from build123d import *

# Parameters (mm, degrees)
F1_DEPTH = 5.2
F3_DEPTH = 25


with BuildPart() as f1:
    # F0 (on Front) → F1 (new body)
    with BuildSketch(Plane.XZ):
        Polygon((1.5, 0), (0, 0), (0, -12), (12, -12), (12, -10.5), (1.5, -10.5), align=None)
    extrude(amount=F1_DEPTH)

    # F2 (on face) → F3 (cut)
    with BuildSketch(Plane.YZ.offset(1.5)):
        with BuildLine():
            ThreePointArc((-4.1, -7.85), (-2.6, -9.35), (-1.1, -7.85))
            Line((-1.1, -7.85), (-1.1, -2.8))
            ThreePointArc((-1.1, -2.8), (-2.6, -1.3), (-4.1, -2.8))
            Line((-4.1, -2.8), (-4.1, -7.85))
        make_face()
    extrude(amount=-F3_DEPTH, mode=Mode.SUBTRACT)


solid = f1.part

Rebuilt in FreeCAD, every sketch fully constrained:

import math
import FreeCAD as App
import Part
import Sketcher
from FreeCAD import Vector
Q = App.Units.Quantity

doc = App.newDocument("Part")
body = doc.addObject("PartDesign::Body", "Body")

sketch1 = body.newObject("Sketcher::SketchObject", "Sketch")
sketch1.AttachmentSupport = (doc.getObject("XZ_Plane"), [""])
sketch1.MapMode = "FlatFace"
sketch1.addGeometry(Part.LineSegment(Vector(1.5, 0, 0), Vector(0, 0, 0)), False)
sketch1.addGeometry(Part.LineSegment(Vector(0, 0, 0), Vector(0, -12, 0)), False)
sketch1.addGeometry(Part.LineSegment(Vector(0, -12, 0), Vector(12, -12, 0)), False)
sketch1.addGeometry(Part.LineSegment(Vector(12, -12, 0), Vector(12, -10.5, 0)), False)
sketch1.addGeometry(Part.LineSegment(Vector(12, -10.5, 0), Vector(1.5, -10.5, 0)), False)
sketch1.addGeometry(Part.LineSegment(Vector(1.5, -10.5, 0), Vector(1.5, 0, 0)), False)
sketch1.addConstraint(Sketcher.Constraint("Coincident", 0, 2, 1, 1))
sketch1.addConstraint(Sketcher.Constraint("Coincident", 1, 2, 2, 1))
sketch1.addConstraint(Sketcher.Constraint("Coincident", 2, 2, 3, 1))
sketch1.addConstraint(Sketcher.Constraint("Coincident", 3, 2, 4, 1))
sketch1.addConstraint(Sketcher.Constraint("Coincident", 4, 2, 5, 1))
sketch1.addConstraint(Sketcher.Constraint("Coincident", 5, 2, 0, 1))
sketch1.addConstraint(Sketcher.Constraint("Horizontal", 0))
sketch1.addConstraint(Sketcher.Constraint("Vertical", 1))
sketch1.addConstraint(Sketcher.Constraint("Horizontal", 2))
sketch1.addConstraint(Sketcher.Constraint("Vertical", 3))
sketch1.addConstraint(Sketcher.Constraint("Horizontal", 4))
sketch1.addConstraint(Sketcher.Constraint("Vertical", 5))
sketch1.addConstraint(Sketcher.Constraint("Coincident", 0, 2, -1, 1))
sketch1.addConstraint(Sketcher.Constraint("Equal", 2, 1))
sketch1.addConstraint(Sketcher.Constraint("Equal", 0, 3))
sketch1.addConstraint(Sketcher.Constraint("DistanceX", 2, 1, 2, 2, Q("12 mm")))
sketch1.addConstraint(Sketcher.Constraint("DistanceX", 0, 2, 0, 1, Q("1.5 mm")))
pad1 = body.newObject("PartDesign::Pad", "Pad")
pad1.Profile = sketch1
pad1.Length = 5.2

sketch2 = body.newObject("Sketcher::SketchObject", "Sketch001")
sketch2.AttachmentSupport = (doc.getObject("YZ_Plane"), [""])
sketch2.MapMode = "FlatFace"
sketch2.AttachmentOffset = App.Placement(Vector(0, 0, 1.5), App.Rotation())
sketch2.addGeometry(Part.ArcOfCircle(Part.Circle(Vector(-2.6, -7.8, 0), Vector(0, 0, 1), 1.5), math.radians(180), math.radians(360)), False)
sketch2.addGeometry(Part.LineSegment(Vector(-1.1, -7.8, 0), Vector(-1.1, -2.8, 0)), False)
sketch2.addGeometry(Part.ArcOfCircle(Part.Circle(Vector(-2.6, -2.8, 0), Vector(0, 0, 1), 1.5), math.radians(0), math.radians(180)), False)
sketch2.addGeometry(Part.LineSegment(Vector(-4.1, -2.8, 0), Vector(-4.1, -7.8, 0)), False)
sketch2.addConstraint(Sketcher.Constraint("Tangent", 0, 2, 1, 1))
sketch2.addConstraint(Sketcher.Constraint("Tangent", 1, 2, 2, 1))
sketch2.addConstraint(Sketcher.Constraint("Tangent", 2, 2, 3, 1))
sketch2.addConstraint(Sketcher.Constraint("Tangent", 3, 2, 0, 1))
sketch2.addConstraint(Sketcher.Constraint("Vertical", 1))
sketch2.addConstraint(Sketcher.Constraint("Vertical", 3))
sketch2.addConstraint(Sketcher.Constraint("Radius", 0, Q("1.5 mm")))
sketch2.addConstraint(Sketcher.Constraint("DistanceY", 1, 1, 1, 2, Q("5.05 mm")))
sketch2.addConstraint(Sketcher.Constraint("DistanceX", 0, 3, -1, 1, Q("2.6 mm")))
sketch2.addConstraint(Sketcher.Constraint("DistanceY", 2, 3, -1, 1, Q("2.8 mm")))
pocket1 = body.newObject("PartDesign::Pocket", "Pocket")
pocket1.Profile = sketch2
pocket1.Length = 25

doc.recompute()
